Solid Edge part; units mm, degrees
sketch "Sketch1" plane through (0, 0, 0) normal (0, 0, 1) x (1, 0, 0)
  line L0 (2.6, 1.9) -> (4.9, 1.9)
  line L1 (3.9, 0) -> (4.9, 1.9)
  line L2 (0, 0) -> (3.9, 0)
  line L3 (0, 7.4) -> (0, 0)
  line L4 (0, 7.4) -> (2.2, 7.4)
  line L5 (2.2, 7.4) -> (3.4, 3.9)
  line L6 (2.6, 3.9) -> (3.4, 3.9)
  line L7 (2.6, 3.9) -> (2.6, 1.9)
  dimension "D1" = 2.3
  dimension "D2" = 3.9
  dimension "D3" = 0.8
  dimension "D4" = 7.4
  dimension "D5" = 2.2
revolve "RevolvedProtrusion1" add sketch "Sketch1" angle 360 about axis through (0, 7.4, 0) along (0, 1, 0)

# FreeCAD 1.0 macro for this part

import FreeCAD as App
import Part
import Sketcher

doc = App.newDocument("Part")
body = doc.addObject("PartDesign::Body", "Body")

sketch1 = body.newObject("Sketcher::SketchObject", "Sketch")
sketch1.AttachmentSupport = (doc.getObject("XY_Plane"), [""])
sketch1.MapMode = "FlatFace"
sketch1.addGeometry([
    Part.LineSegment(App.Vector(4.9, 1.9, 0), App.Vector(2.6, 1.9, 0)),
    Part.LineSegment(App.Vector(2.6, 1.9, 0), App.Vector(2.6, 3.9, 0)),
    Part.LineSegment(App.Vector(2.6, 3.9, 0), App.Vector(3.4, 3.9, 0)),
    Part.LineSegment(App.Vector(3.4, 3.9, 0), App.Vector(2.2, 7.4, 0)),
    Part.LineSegment(App.Vector(2.2, 7.4, 0), App.Vector(0, 7.4, 0)),
    Part.LineSegment(App.Vector(0, 7.4, 0), App.Vector(0, 0, 0)),
    Part.LineSegment(App.Vector(0, 0, 0), App.Vector(3.9, 0, 0)),
    Part.LineSegment(App.Vector(3.9, 0, 0), App.Vector(4.9, 1.9, 0)),
], False)
sketch1.addConstraint([
    Sketcher.Constraint("Coincident", 0, 2, 1, 1),
    Sketcher.Constraint("Coincident", 1, 2, 2, 1),
    Sketcher.Constraint("Coincident", 2, 2, 3, 1),
    Sketcher.Constraint("Coincident", 3, 2, 4, 1),
    Sketcher.Constraint("Coincident", 4, 2, 5, 1),
    Sketcher.Constraint("Coincident", 5, 2, 6, 1),
    Sketcher.Constraint("Coincident", 6, 2, 7, 1),
    Sketcher.Constraint("Coincident", 7, 2, 0, 1),
    Sketcher.Constraint("Horizontal", 0),
    Sketcher.Constraint("Vertical", 1),
    Sketcher.Constraint("Horizontal", 2),
    Sketcher.Constraint("Horizontal", 4),
    Sketcher.Constraint("Vertical", 5),
    Sketcher.Constraint("Horizontal", 6),
    Sketcher.Constraint("Coincident", 5, 2, -1, 1),
    Sketcher.Constraint("DistanceY", 1, 1, 1, 2, 2.0),
    Sketcher.Constraint("DistanceX", 0, 2, 0, 1, 2.3),
    Sketcher.Constraint("DistanceX", 2, 1, 2, 2, 0.8),
    Sketcher.Constraint("DistanceX", 4, 2, 4, 1, 2.2),
    Sketcher.Constraint("DistanceX", 6, 1, 6, 2, 3.9),
    Sketcher.Constraint("DistanceY", 5, 2, 5, 1, 7.4),
    Sketcher.Constraint("DistanceX", 6, 2, 7, 2, 1.0),
    Sketcher.Constraint("Distance", 3, 3.7),
])
revolution = body.newObject("PartDesign::Revolution", "Revolution")
revolution.Profile = sketch1
revolution.ReferenceAxis = (sketch1, ["V_Axis"])
revolution.Angle = 360

doc.recompute()
